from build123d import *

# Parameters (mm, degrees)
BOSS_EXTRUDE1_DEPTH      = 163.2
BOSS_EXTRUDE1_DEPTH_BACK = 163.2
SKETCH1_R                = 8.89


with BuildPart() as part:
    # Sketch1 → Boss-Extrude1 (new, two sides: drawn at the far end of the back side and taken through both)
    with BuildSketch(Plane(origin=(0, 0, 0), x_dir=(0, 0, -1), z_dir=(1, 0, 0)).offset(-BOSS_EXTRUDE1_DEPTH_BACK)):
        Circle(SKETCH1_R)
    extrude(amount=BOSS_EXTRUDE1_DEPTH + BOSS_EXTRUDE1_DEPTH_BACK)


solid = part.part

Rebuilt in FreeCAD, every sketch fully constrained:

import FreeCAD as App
import Part
import Sketcher
from FreeCAD import Vector
Q = App.Units.Quantity

doc = App.newDocument("Part")
body = doc.addObject("PartDesign::Body", "Body")

# Sketch on YZ plane
sketch1 = body.newObject("Sketcher::SketchObject", "Sketch")
sketch1.AttachmentSupport = (doc.getObject("YZ_Plane"), [""])
sketch1.MapMode = "FlatFace"
sketch1.addGeometry(Part.Circle(Vector(0, 0, 0), Vector(0, 0, 1), 9), False)
sketch1.addConstraint([
    Sketcher.Constraint("Coincident", 0, 3, -1, 1),
    Sketcher.Constraint("Diameter", 0, Q("17.78 mm")),
])
pad1 = body.newObject("PartDesign::Pad", "Pad")
pad1.Profile = sketch1
pad1.Type = "TwoLengths"
pad1.Length = 163.2
pad1.Length2 = 163.2

doc.recompute()
